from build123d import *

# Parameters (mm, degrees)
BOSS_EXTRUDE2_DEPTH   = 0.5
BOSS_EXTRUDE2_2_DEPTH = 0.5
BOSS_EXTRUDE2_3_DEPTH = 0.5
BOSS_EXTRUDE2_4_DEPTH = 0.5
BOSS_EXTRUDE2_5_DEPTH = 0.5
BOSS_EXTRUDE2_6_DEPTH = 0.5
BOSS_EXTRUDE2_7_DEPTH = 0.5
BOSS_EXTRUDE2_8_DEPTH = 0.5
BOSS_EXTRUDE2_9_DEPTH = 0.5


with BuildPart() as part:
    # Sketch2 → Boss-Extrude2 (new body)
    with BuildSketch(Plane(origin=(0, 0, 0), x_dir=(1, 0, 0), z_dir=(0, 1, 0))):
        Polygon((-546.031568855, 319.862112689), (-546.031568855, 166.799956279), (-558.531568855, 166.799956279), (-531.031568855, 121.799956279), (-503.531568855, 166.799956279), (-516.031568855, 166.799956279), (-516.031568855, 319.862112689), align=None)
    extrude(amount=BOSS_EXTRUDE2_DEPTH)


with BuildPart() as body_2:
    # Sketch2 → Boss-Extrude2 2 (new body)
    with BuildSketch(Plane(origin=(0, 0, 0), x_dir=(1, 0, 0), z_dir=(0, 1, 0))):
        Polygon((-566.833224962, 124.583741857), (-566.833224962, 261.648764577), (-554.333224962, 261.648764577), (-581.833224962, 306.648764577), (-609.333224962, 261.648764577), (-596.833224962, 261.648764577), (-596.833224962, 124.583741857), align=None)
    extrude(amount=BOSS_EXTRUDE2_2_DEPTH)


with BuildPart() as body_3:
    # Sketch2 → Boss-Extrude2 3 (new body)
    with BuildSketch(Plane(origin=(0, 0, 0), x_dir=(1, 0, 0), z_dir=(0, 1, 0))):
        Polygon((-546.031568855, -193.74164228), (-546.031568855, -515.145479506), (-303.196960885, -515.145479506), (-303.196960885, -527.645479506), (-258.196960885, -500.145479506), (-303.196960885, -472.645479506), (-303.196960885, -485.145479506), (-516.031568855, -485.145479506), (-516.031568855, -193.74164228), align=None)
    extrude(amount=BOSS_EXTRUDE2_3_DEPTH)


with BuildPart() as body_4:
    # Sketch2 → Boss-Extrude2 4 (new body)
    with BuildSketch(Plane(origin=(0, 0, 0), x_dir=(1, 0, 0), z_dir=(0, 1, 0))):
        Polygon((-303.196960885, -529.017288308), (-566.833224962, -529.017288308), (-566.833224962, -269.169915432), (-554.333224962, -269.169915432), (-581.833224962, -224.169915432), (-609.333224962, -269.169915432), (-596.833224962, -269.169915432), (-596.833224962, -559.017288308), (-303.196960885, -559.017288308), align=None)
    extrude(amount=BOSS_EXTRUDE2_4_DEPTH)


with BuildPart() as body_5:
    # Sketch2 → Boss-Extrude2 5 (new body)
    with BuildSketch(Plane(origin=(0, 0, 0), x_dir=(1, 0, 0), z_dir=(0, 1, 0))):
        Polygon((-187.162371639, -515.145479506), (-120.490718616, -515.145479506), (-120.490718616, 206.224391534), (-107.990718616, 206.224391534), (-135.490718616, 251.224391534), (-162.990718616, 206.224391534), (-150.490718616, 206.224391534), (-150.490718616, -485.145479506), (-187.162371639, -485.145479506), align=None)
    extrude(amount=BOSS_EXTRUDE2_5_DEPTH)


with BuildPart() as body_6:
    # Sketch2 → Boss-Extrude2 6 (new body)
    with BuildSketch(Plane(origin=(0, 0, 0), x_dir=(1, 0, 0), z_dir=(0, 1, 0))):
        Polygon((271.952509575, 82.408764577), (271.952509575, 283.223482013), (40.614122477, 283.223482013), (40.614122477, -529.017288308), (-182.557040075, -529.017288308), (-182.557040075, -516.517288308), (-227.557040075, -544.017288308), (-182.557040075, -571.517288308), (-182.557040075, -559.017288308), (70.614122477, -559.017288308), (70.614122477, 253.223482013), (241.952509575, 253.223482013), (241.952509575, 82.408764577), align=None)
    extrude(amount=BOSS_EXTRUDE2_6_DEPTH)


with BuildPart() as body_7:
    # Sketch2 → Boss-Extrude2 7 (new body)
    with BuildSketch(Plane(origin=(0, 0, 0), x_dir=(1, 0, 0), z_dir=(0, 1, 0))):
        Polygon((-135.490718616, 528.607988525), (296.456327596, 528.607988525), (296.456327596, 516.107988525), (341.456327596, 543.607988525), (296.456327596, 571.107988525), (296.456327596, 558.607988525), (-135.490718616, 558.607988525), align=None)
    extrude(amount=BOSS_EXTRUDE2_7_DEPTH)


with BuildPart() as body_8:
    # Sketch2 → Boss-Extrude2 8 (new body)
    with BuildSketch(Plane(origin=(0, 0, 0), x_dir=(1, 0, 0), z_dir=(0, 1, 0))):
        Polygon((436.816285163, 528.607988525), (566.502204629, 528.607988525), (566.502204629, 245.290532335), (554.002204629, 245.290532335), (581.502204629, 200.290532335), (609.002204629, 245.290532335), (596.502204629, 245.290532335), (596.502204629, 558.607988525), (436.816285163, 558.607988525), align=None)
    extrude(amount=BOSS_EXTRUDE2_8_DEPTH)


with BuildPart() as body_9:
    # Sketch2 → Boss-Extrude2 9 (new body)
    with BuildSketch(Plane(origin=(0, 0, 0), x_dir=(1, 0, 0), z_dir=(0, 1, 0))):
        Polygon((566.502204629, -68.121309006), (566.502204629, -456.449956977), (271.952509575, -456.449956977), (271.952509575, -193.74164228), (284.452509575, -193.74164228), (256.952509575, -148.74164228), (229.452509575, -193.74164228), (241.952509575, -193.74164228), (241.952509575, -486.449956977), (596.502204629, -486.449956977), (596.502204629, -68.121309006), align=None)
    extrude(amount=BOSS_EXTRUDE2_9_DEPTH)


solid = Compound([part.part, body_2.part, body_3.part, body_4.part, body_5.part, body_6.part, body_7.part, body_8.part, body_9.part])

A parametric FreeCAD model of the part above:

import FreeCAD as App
import Part
import Sketcher

doc = App.newDocument("Part")
body = doc.addObject("PartDesign::Body", "Body")

# Sketch on XZ plane
sketch1 = body.newObject("Sketcher::SketchObject", "Sketch")
sketch1.AttachmentSupport = (doc.getObject("XZ_Plane"), [""])
sketch1.MapMode = "FlatFace"
sketch1.addGeometry([
    Part.LineSegment(App.Vector(-546.031569, -319.862113, 0), App.Vector(-546.031569, -166.799956, 0)),  # 0
    Part.LineSegment(App.Vector(-546.031569, -166.799956, 0), App.Vector(-558.531569, -166.799956, 0)),  # 1
    Part.LineSegment(App.Vector(-558.531569, -166.799956, 0), App.Vector(-531.031569, -121.799956, 0)),  # 2
    Part.LineSegment(App.Vector(-531.031569, -121.799956, 0), App.Vector(-503.531569, -166.799956, 0)),  # 3
    Part.LineSegment(App.Vector(-503.531569, -166.799956, 0), App.Vector(-516.031569, -166.799956, 0)),  # 4
    Part.LineSegment(App.Vector(-516.031569, -166.799956, 0), App.Vector(-516.031569, -319.862113, 0)),  # 5
    Part.LineSegment(App.Vector(-516.031569, -319.862113, 0), App.Vector(-546.031569, -319.862113, 0)),  # 6
], False)
sketch1.addConstraint([
    Sketcher.Constraint("Coincident", 0, 2, 1, 1),
    Sketcher.Constraint("Coincident", 1, 2, 2, 1),
    Sketcher.Constraint("Coincident", 2, 2, 3, 1),
    Sketcher.Constraint("Coincident", 3, 2, 4, 1),
    Sketcher.Constraint("Coincident", 4, 2, 5, 1),
    Sketcher.Constraint("Coincident", 5, 2, 6, 1),
    Sketcher.Constraint("Coincident", 6, 2, 0, 1),
    Sketcher.Constraint("Vertical", 0),
    Sketcher.Constraint("Horizontal", 1),
    Sketcher.Constraint("Horizontal", 4),
    Sketcher.Constraint("Vertical", 5),
    Sketcher.Constraint("Horizontal", 6),
    Sketcher.Constraint("Horizontal", 1, 2, 3, 2),
    Sketcher.Constraint("Equal", 1, 4),
    Sketcher.Constraint("Equal", 2, 3),
    Sketcher.Constraint("DistanceX", 6, 2, 6, 1, 30.0),
    Sketcher.Constraint("DistanceX", 1, 2, 1, 1, 12.5),
    Sketcher.Constraint("DistanceY", 0, 2, 2, 2, 45.0),
    Sketcher.Constraint("DistanceY", 0, 1, 0, 2, 153.062156),
    Sketcher.Constraint("DistanceX", 0, 2, -1, 1, 546.031569),
    Sketcher.Constraint("DistanceY", 0, 2, -1, 1, 166.799956),
])
pad1 = body.newObject("PartDesign::Pad", "Pad")
pad1.Profile = sketch1
pad1.Length = 0.5
pad1.Reversed = True
body2 = doc.addObject("PartDesign::Body", "Body001")

# Sketch on XZ plane
sketch2 = body2.newObject("Sketcher::SketchObject", "Sketch001")
sketch2.AttachmentSupport = (doc.getObject("XZ_Plane001"), [""])
sketch2.MapMode = "FlatFace"
sketch2.addGeometry([
    Part.LineSegment(App.Vector(-566.833225, -124.583742, 0), App.Vector(-566.833225, -261.648765, 0)),  # 0
    Part.LineSegment(App.Vector(-566.833225, -261.648765, 0), App.Vector(-554.333225, -261.648765, 0)),  # 1
    Part.LineSegment(App.Vector(-554.333225, -261.648765, 0), App.Vector(-581.833225, -306.648765, 0)),  # 2
    Part.LineSegment(App.Vector(-581.833225, -306.648765, 0), App.Vector(-609.333225, -261.648765, 0)),  # 3
    Part.LineSegment(App.Vector(-609.333225, -261.648765, 0), App.Vector(-596.833225, -261.648765, 0)),  # 4
    Part.LineSegment(App.Vector(-596.833225, -261.648765, 0), App.Vector(-596.833225, -124.583742, 0)),  # 5
    Part.LineSegment(App.Vector(-596.833225, -124.583742, 0), App.Vector(-566.833225, -124.583742, 0)),  # 6
], False)
sketch2.addConstraint([
    Sketcher.Constraint("Coincident", 0, 2, 1, 1),
    Sketcher.Constraint("Coincident", 1, 2, 2, 1),
    Sketcher.Constraint("Coincident", 2, 2, 3, 1),
    Sketcher.Constraint("Coincident", 3, 2, 4, 1),
    Sketcher.Constraint("Coincident", 4, 2, 5, 1),
    Sketcher.Constraint("Coincident", 5, 2, 6, 1),
    Sketcher.Constraint("Coincident", 6, 2, 0, 1),
    Sketcher.Constraint("Vertical", 0),
    Sketcher.Constraint("Horizontal", 1),
    Sketcher.Constraint("Horizontal", 4),
    Sketcher.Constraint("Vertical", 5),
    Sketcher.Constraint("Horizontal", 6),
    Sketcher.Constraint("Horizontal", 1, 2, 3, 2),
    Sketcher.Constraint("Equal", 1, 4),
    Sketcher.Constraint("Equal", 2, 3),
    Sketcher.Constraint("DistanceX", 6, 1, 6, 2, 30.0),
    Sketcher.Constraint("DistanceX", 1, 1, 1, 2, 12.5),
    Sketcher.Constraint("DistanceY", 2, 2, 0, 2, 45.0),
    Sketcher.Constraint("DistanceY", 0, 2, 0, 1, 137.065023),
    Sketcher.Constraint("DistanceY", 5, 2, -1, 1, 124.583742),
    Sketcher.Constraint("DistanceX", 0, 2, -1, 1, 566.833225),
])
pad2 = body2.newObject("PartDesign::Pad", "Pad001")
pad2.Profile = sketch2
pad2.Length = 0.5
pad2.Reversed = True
body3 = doc.addObject("PartDesign::Body", "Body002")

# Sketch on XZ plane
sketch3 = body3.newObject("Sketcher::SketchObject", "Sketch002")
sketch3.AttachmentSupport = (doc.getObject("XZ_Plane002"), [""])
sketch3.MapMode = "FlatFace"
sketch3.addGeometry([
    Part.LineSegment(App.Vector(-546.031569, 193.741642, 0), App.Vector(-546.031569, 515.14548, 0)),  # 0
    Part.LineSegment(App.Vector(-546.031569, 515.14548, 0), App.Vector(-303.196961, 515.14548, 0)),  # 1
    Part.LineSegment(App.Vector(-303.196961, 515.14548, 0), App.Vector(-303.196961, 527.64548, 0)),  # 2
    Part.LineSegment(App.Vector(-303.196961, 527.64548, 0), App.Vector(-258.196961, 500.14548, 0)),  # 3
    Part.LineSegment(App.Vector(-258.196961, 500.14548, 0), App.Vector(-303.196961, 472.64548, 0)),  # 4
    Part.LineSegment(App.Vector(-303.196961, 472.64548, 0), App.Vector(-303.196961, 485.14548, 0)),  # 5
    Part.LineSegment(App.Vector(-303.196961, 485.14548, 0), App.Vector(-516.031569, 485.14548, 0)),  # 6
    Part.LineSegment(App.Vector(-516.031569, 485.14548, 0), App.Vector(-516.031569, 193.741642, 0)),  # 7
    Part.LineSegment(App.Vector(-516.031569, 193.741642, 0), App.Vector(-546.031569, 193.741642, 0)),  # 8
], False)
sketch3.addConstraint([
    Sketcher.Constraint("Coincident", 0, 2, 1, 1),
    Sketcher.Constraint("Coincident", 1, 2, 2, 1),
    Sketcher.Constraint("Coincident", 2, 2, 3, 1),
    Sketcher.Constraint("Coincident", 3, 2, 4, 1),
    Sketcher.Constraint("Coincident", 4, 2, 5, 1),
    Sketcher.Constraint("Coincident", 5, 2, 6, 1),
    Sketcher.Constraint("Coincident", 6, 2, 7, 1),
    Sketcher.Constraint("Coincident", 7, 2, 8, 1),
    Sketcher.Constraint("Coincident", 8, 2, 0, 1),
    Sketcher.Constraint("Vertical", 0),
    Sketcher.Constraint("Horizontal", 1),
    Sketcher.Constraint("Vertical", 2),
    Sketcher.Constraint("Vertical", 5),
    Sketcher.Constraint("Horizontal", 6),
    Sketcher.Constraint("Vertical", 7),
    Sketcher.Constraint("Horizontal", 8),
    Sketcher.Constraint("Vertical", 2, 2, 4, 2),
    Sketcher.Constraint("Equal", 2, 5),
    Sketcher.Constraint("Equal", 3, 4),
    Sketcher.Constraint("DistanceX", 8, 2, 8, 1, 30.0),
    Sketcher.Constraint("DistanceY", 2, 1, 2, 2, 12.5),
    Sketcher.Constraint("DistanceX", 1, 2, 3, 2, 45.0),
    Sketcher.Constraint("DistanceY", 3, 2, 1, 2, 15.0),
    Sketcher.Constraint("DistanceX", 1, 1, 1, 2, 242.834608),
    Sketcher.Constraint("DistanceY", 0, 1, 0, 2, 321.403837),
    Sketcher.Constraint("DistanceX", 0, 2, -1, 1, 546.031569),
    Sketcher.Constraint("DistanceY", -1, 1, 0, 2, 515.14548),
])
pad3 = body3.newObject("PartDesign::Pad", "Pad002")
pad3.Profile = sketch3
pad3.Length = 0.5
pad3.Reversed = True
body4 = doc.addObject("PartDesign::Body", "Body003")

# Sketch on XZ plane
sketch4 = body4.newObject("Sketcher::SketchObject", "Sketch003")
sketch4.AttachmentSupport = (doc.getObject("XZ_Plane003"), [""])
sketch4.MapMode = "FlatFace"
sketch4.addGeometry([
    Part.LineSegment(App.Vector(-303.196961, 529.017288, 0), App.Vector(-566.833225, 529.017288, 0)),  # 0
    Part.LineSegment(App.Vector(-566.833225, 529.017288, 0), App.Vector(-566.833225, 269.169915, 0)),  # 1
    Part.LineSegment(App.Vector(-566.833225, 269.169915, 0), App.Vector(-554.333225, 269.169915, 0)),  # 2
    Part.LineSegment(App.Vector(-554.333225, 269.169915, 0), App.Vector(-581.833225, 224.169915, 0)),  # 3
    Part.LineSegment(App.Vector(-581.833225, 224.169915, 0), App.Vector(-609.333225, 269.169915, 0)),  # 4
    Part.LineSegment(App.Vector(-609.333225, 269.169915, 0), App.Vector(-596.833225, 269.169915, 0)),  # 5
    Part.LineSegment(App.Vector(-596.833225, 269.169915, 0), App.Vector(-596.833225, 559.017288, 0)),  # 6
    Part.LineSegment(App.Vector(-596.833225, 559.017288, 0), App.Vector(-303.196961, 559.017288, 0)),  # 7
    Part.LineSegment(App.Vector(-303.196961, 559.017288, 0), App.Vector(-303.196961, 529.017288, 0)),  # 8
], False)
sketch4.addConstraint([
    Sketcher.Constraint("Coincident", 0, 2, 1, 1),
    Sketcher.Constraint("Coincident", 1, 2, 2, 1),
    Sketcher.Constraint("Coincident", 2, 2, 3, 1),
    Sketcher.Constraint("Coincident", 3, 2, 4, 1),
    Sketcher.Constraint("Coincident", 4, 2, 5, 1),
    Sketcher.Constraint("Coincident", 5, 2, 6, 1),
    Sketcher.Constraint("Coincident", 6, 2, 7, 1),
    Sketcher.Constraint("Coincident", 7, 2, 8, 1),
    Sketcher.Constraint("Coincident", 8, 2, 0, 1),
    Sketcher.Constraint("Horizontal", 0),
    Sketcher.Constraint("Vertical", 1),
    Sketcher.Constraint("Horizontal", 2),
    Sketcher.Constraint("Horizontal", 5),
    Sketcher.Constraint("Vertical", 6),
    Sketcher.Constraint("Horizontal", 7),
    Sketcher.Constraint("Vertical", 8),
    Sketcher.Constraint("Horizontal", 2, 2, 4, 2),
    Sketcher.Constraint("Equal", 2, 5),
    Sketcher.Constraint("Equal", 3, 4),
    Sketcher.Constraint("DistanceY", 8, 2, 8, 1, 30.0),
    Sketcher.Constraint("DistanceX", 2, 1, 2, 2, 12.5),
    Sketcher.Constraint("DistanceX", 3, 2, 1, 2, 15.0),
    Sketcher.Constraint("DistanceY", 3, 2, 1, 2, 45.0),
    Sketcher.Constraint("DistanceX", 0, 2, 0, 1, 263.636264),
    Sketcher.Constraint("DistanceY", 1, 2, 1, 1, 259.847373),
    Sketcher.Constraint("DistanceY", -1, 1, 0, 2, 529.017288),
    Sketcher.Constraint("DistanceX", 7, 2, -1, 1, 303.196961),
])
pad4 = body4.newObject("PartDesign::Pad", "Pad003")
pad4.Profile = sketch4
pad4.Length = 0.5
pad4.Reversed = True
body5 = doc.addObject("PartDesign::Body", "Body004")

# Sketch on XZ plane
sketch5 = body5.newObject("Sketcher::SketchObject", "Sketch004")
sketch5.AttachmentSupport = (doc.getObject("XZ_Plane004"), [""])
sketch5.MapMode = "FlatFace"
sketch5.addGeometry([
    Part.LineSegment(App.Vector(-187.162372, 515.14548, 0), App.Vector(-120.490719, 515.14548, 0)),  # 0
    Part.LineSegment(App.Vector(-120.490719, 515.14548, 0), App.Vector(-120.490719, -206.224392, 0)),  # 1
    Part.LineSegment(App.Vector(-120.490719, -206.224392, 0), App.Vector(-107.990719, -206.224392, 0)),  # 2
    Part.LineSegment(App.Vector(-107.990719, -206.224392, 0), App.Vector(-135.490719, -251.224392, 0)),  # 3
    Part.LineSegment(App.Vector(-135.490719, -251.224392, 0), App.Vector(-162.990719, -206.224392, 0)),  # 4
    Part.LineSegment(App.Vector(-162.990719, -206.224392, 0), App.Vector(-150.490719, -206.224392, 0)),  # 5
    Part.LineSegment(App.Vector(-150.490719, -206.224392, 0), App.Vector(-150.490719, 485.14548, 0)),  # 6
    Part.LineSegment(App.Vector(-150.490719, 485.14548, 0), App.Vector(-187.162372, 485.14548, 0)),  # 7
    Part.LineSegment(App.Vector(-187.162372, 485.14548, 0), App.Vector(-187.162372, 515.14548, 0)),  # 8
], False)
sketch5.addConstraint([
    Sketcher.Constraint("Coincident", 0, 2, 1, 1),
    Sketcher.Constraint("Coincident", 1, 2, 2, 1),
    Sketcher.Constraint("Coincident", 2, 2, 3, 1),
    Sketcher.Constraint("Coincident", 3, 2, 4, 1),
    Sketcher.Constraint("Coincident", 4, 2, 5, 1),
    Sketcher.Constraint("Coincident", 5, 2, 6, 1),
    Sketcher.Constraint("Coincident", 6, 2, 7, 1),
    Sketcher.Constraint("Coincident", 7, 2, 8, 1),
    Sketcher.Constraint("Coincident", 8, 2, 0, 1),
    Sketcher.Constraint("Horizontal", 0),
    Sketcher.Constraint("Vertical", 1),
    Sketcher.Constraint("Horizontal", 2),
    Sketcher.Constraint("Horizontal", 5),
    Sketcher.Constraint("Vertical", 6),
    Sketcher.Constraint("Horizontal", 7),
    Sketcher.Constraint("Vertical", 8),
    Sketcher.Constraint("Horizontal", 2, 2, 4, 2),
    Sketcher.Constraint("Equal", 2, 5),
    Sketcher.Constraint("Equal", 3, 4),
    Sketcher.Constraint("DistanceY", 8, 1, 8, 2, 30.0),
    Sketcher.Constraint("DistanceX", 2, 1, 2, 2, 12.5),
    Sketcher.Constraint("DistanceX", 3, 2, 1, 2, 15.0),
    Sketcher.Constraint("DistanceY", 3, 2, 1, 2, 45.0),
    Sketcher.Constraint("DistanceY", 1, 2, 1, 1, 721.369871),
    Sketcher.Constraint("DistanceX", 0, 1, 0, 2, 66.671653),
    Sketcher.Constraint("DistanceX", 0, 2, -1, 1, 120.490719),
    Sketcher.Constraint("DistanceY", -1, 1, 0, 2, 515.14548),
])
pad5 = body5.newObject("PartDesign::Pad", "Pad004")
pad5.Profile = sketch5
pad5.Length = 0.5
pad5.Reversed = True
body6 = doc.addObject("PartDesign::Body", "Body005")

# Sketch on XZ plane
sketch6 = body6.newObject("Sketcher::SketchObject", "Sketch005")
sketch6.AttachmentSupport = (doc.getObject("XZ_Plane005"), [""])
sketch6.MapMode = "FlatFace"
sketch6.addGeometry([
    Part.LineSegment(App.Vector(271.95251, -82.408765, 0), App.Vector(271.95251, -283.223482, 0)),  # 0
    Part.LineSegment(App.Vector(271.95251, -283.223482, 0), App.Vector(40.614122, -283.223482, 0)),  # 1
    Part.LineSegment(App.Vector(40.614122, -283.223482, 0), App.Vector(40.614122, 529.017288, 0)),  # 2
    Part.LineSegment(App.Vector(40.614122, 529.017288, 0), App.Vector(-182.55704, 529.017288, 0)),  # 3
    Part.LineSegment(App.Vector(-182.55704, 529.017288, 0), App.Vector(-182.55704, 516.517288, 0)),  # 4
    Part.LineSegment(App.Vector(-182.55704, 516.517288, 0), App.Vector(-227.55704, 544.017288, 0)),  # 5
    Part.LineSegment(App.Vector(-227.55704, 544.017288, 0), App.Vector(-182.55704, 571.517288, 0)),  # 6
    Part.LineSegment(App.Vector(-182.55704, 571.517288, 0), App.Vector(-182.55704, 559.017288, 0)),  # 7
    Part.LineSegment(App.Vector(-182.55704, 559.017288, 0), App.Vector(70.614122, 559.017288, 0)),  # 8
    Part.LineSegment(App.Vector(70.614122, 559.017288, 0), App.Vector(70.614122, -253.223482, 0)),  # 9
    Part.LineSegment(App.Vector(70.614122, -253.223482, 0), App.Vector(241.95251, -253.223482, 0)),  # 10
    Part.LineSegment(App.Vector(241.95251, -253.223482, 0), App.Vector(241.95251, -82.408765, 0)),  # 11
    Part.LineSegment(App.Vector(241.95251, -82.408765, 0), App.Vector(271.95251, -82.408765, 0)),  # 12
], False)
sketch6.addConstraint([
    Sketcher.Constraint("Coincident", 0, 2, 1, 1),
    Sketcher.Constraint("Coincident", 1, 2, 2, 1),
    Sketcher.Constraint("Coincident", 2, 2, 3, 1),
    Sketcher.Constraint("Coincident", 3, 2, 4, 1),
    Sketcher.Constraint("Coincident", 4, 2, 5, 1),
    Sketcher.Constraint("Coincident", 5, 2, 6, 1),
    Sketcher.Constraint("Coincident", 6, 2, 7, 1),
    Sketcher.Constraint("Coincident", 7, 2, 8, 1),
    Sketcher.Constraint("Coincident", 8, 2, 9, 1),
    Sketcher.Constraint("Coincident", 9, 2, 10, 1),
    Sketcher.Constraint("Coincident", 10, 2, 11, 1),
    Sketcher.Constraint("Coincident", 11, 2, 12, 1),
    Sketcher.Constraint("Coincident", 12, 2, 0, 1),
    Sketcher.Constraint("Vertical", 0),
    Sketcher.Constraint("Horizontal", 1),
    Sketcher.Constraint("Vertical", 2),
    Sketcher.Constraint("Horizontal", 3),
    Sketcher.Constraint("Vertical", 4),
    Sketcher.Constraint("Vertical", 7),
    Sketcher.Constraint("Horizontal", 8),
    Sketcher.Constraint("Vertical", 9),
    Sketcher.Constraint("Horizontal", 10),
    Sketcher.Constraint("Vertical", 11),
    Sketcher.Constraint("Horizontal", 12),
    Sketcher.Constraint("Vertical", 4, 2, 6, 2),
    Sketcher.Constraint("Equal", 4, 7),
    Sketcher.Constraint("Equal", 2, 9),
    Sketcher.Constraint("Equal", 5, 6),
    Sketcher.Constraint("DistanceX", 12, 1, 12, 2, 30.0),
    Sketcher.Constraint("DistanceY", 4, 2, 4, 1, 12.5),
    Sketcher.Constraint("DistanceX", 5, 2, 3, 2, 45.0),
    Sketcher.Constraint("DistanceY", 3, 2, 5, 2, 15.0),
    Sketcher.Constraint("DistanceX", 2, 2, 8, 2, 30.0),
    Sketcher.Constraint("DistanceY", 2, 1, 2, 2, 812.24077),
    Sketcher.Constraint("DistanceX", 1, 2, 1, 1, 231.338387),
    Sketcher.Constraint("DistanceX", 3, 2, 3, 1, 223.171163),
    Sketcher.Constraint("DistanceY", 0, 2, 0, 1, 200.814717),
    Sketcher.Constraint("DistanceX", -1, 1, 0, 2, 271.95251),
    Sketcher.Constraint("DistanceY", -1, 1, 2, 2, 529.017288),
])
pad6 = body6.newObject("PartDesign::Pad", "Pad005")
pad6.Profile = sketch6
pad6.Length = 0.5
pad6.Reversed = True
body7 = doc.addObject("PartDesign::Body", "Body006")

# Sketch on XZ plane
sketch7 = body7.newObject("Sketcher::SketchObject", "Sketch006")
sketch7.AttachmentSupport = (doc.getObject("XZ_Plane006"), [""])
sketch7.MapMode = "FlatFace"
sketch7.addGeometry([
    Part.LineSegment(App.Vector(-135.490719, -528.607989, 0), App.Vector(296.456328, -528.607989, 0)),  # 0
    Part.LineSegment(App.Vector(296.456328, -528.607989, 0), App.Vector(296.456328, -516.107989, 0)),  # 1
    Part.LineSegment(App.Vector(296.456328, -516.107989, 0), App.Vector(341.456328, -543.607989, 0)),  # 2
    Part.LineSegment(App.Vector(341.456328, -543.607989, 0), App.Vector(296.456328, -571.107989, 0)),  # 3
    Part.LineSegment(App.Vector(296.456328, -571.107989, 0), App.Vector(296.456328, -558.607989, 0)),  # 4
    Part.LineSegment(App.Vector(296.456328, -558.607989, 0), App.Vector(-135.490719, -558.607989, 0)),  # 5
    Part.LineSegment(App.Vector(-135.490719, -558.607989, 0), App.Vector(-135.490719, -528.607989, 0)),  # 6
], False)
sketch7.addConstraint([
    Sketcher.Constraint("Coincident", 0, 2, 1, 1),
    Sketcher.Constraint("Coincident", 1, 2, 2, 1),
    Sketcher.Constraint("Coincident", 2, 2, 3, 1),
    Sketcher.Constraint("Coincident", 3, 2, 4, 1),
    Sketcher.Constraint("Coincident", 4, 2, 5, 1),
    Sketcher.Constraint("Coincident", 5, 2, 6, 1),
    Sketcher.Constraint("Coincident", 6, 2, 0, 1),
    Sketcher.Constraint("Horizontal", 0),
    Sketcher.Constraint("Vertical", 1),
    Sketcher.Constraint("Vertical", 4),
    Sketcher.Constraint("Horizontal", 5),
    Sketcher.Constraint("Vertical", 6),
    Sketcher.Constraint("Vertical", 1, 2, 3, 2),
    Sketcher.Constraint("Equal", 1, 4),
    Sketcher.Constraint("Equal", 2, 3),
    Sketcher.Constraint("DistanceY", 6, 1, 6, 2, 30.0),
    Sketcher.Constraint("DistanceY", 1, 1, 1, 2, 12.5),
    Sketcher.Constraint("DistanceX", 0, 2, 2, 2, 45.0),
    Sketcher.Constraint("DistanceX", 0, 1, 0, 2, 431.947046),
    Sketcher.Constraint("DistanceY", 0, 2, -1, 1, 528.607989),
    Sketcher.Constraint("DistanceX", 5, 2, -1, 1, 135.490719),
])
pad7 = body7.newObject("PartDesign::Pad", "Pad006")
pad7.Profile = sketch7
pad7.Length = 0.5
pad7.Reversed = True
body8 = doc.addObject("PartDesign::Body", "Body007")

# Sketch on XZ plane
sketch8 = body8.newObject("Sketcher::SketchObject", "Sketch007")
sketch8.AttachmentSupport = (doc.getObject("XZ_Plane007"), [""])
sketch8.MapMode = "FlatFace"
sketch8.addGeometry([
    Part.LineSegment(App.Vector(436.816285, -528.607989, 0), App.Vector(566.502205, -528.607989, 0)),  # 0
    Part.LineSegment(App.Vector(566.502205, -528.607989, 0), App.Vector(566.502205, -245.290532, 0)),  # 1
    Part.LineSegment(App.Vector(566.502205, -245.290532, 0), App.Vector(554.002205, -245.290532, 0)),  # 2
    Part.LineSegment(App.Vector(554.002205, -245.290532, 0), App.Vector(581.502205, -200.290532, 0)),  # 3
    Part.LineSegment(App.Vector(581.502205, -200.290532, 0), App.Vector(609.002205, -245.290532, 0)),  # 4
    Part.LineSegment(App.Vector(609.002205, -245.290532, 0), App.Vector(596.502205, -245.290532, 0)),  # 5
    Part.LineSegment(App.Vector(596.502205, -245.290532, 0), App.Vector(596.502205, -558.607989, 0)),  # 6
    Part.LineSegment(App.Vector(596.502205, -558.607989, 0), App.Vector(436.816285, -558.607989, 0)),  # 7
    Part.LineSegment(App.Vector(436.816285, -558.607989, 0), App.Vector(436.816285, -528.607989, 0)),  # 8
], False)
sketch8.addConstraint([
    Sketcher.Constraint("Coincident", 0, 2, 1, 1),
    Sketcher.Constraint("Coincident", 1, 2, 2, 1),
    Sketcher.Constraint("Coincident", 2, 2, 3, 1),
    Sketcher.Constraint("Coincident", 3, 2, 4, 1),
    Sketcher.Constraint("Coincident", 4, 2, 5, 1),
    Sketcher.Constraint("Coincident", 5, 2, 6, 1),
    Sketcher.Constraint("Coincident", 6, 2, 7, 1),
    Sketcher.Constraint("Coincident", 7, 2, 8, 1),
    Sketcher.Constraint("Coincident", 8, 2, 0, 1),
    Sketcher.Constraint("Horizontal", 0),
    Sketcher.Constraint("Vertical", 1),
    Sketcher.Constraint("Horizontal", 2),
    Sketcher.Constraint("Horizontal", 5),
    Sketcher.Constraint("Vertical", 6),
    Sketcher.Constraint("Horizontal", 7),
    Sketcher.Constraint("Vertical", 8),
    Sketcher.Constraint("Horizontal", 2, 2, 4, 2),
    Sketcher.Constraint("Equal", 2, 5),
    Sketcher.Constraint("Equal", 3, 4),
    Sketcher.Constraint("DistanceY", 8, 1, 8, 2, 30.0),
    Sketcher.Constraint("DistanceX", 2, 2, 2, 1, 12.5),
    Sketcher.Constraint("DistanceX", 1, 2, 3, 2, 15.0),
    Sketcher.Constraint("DistanceY", 1, 2, 3, 2, 45.0),
    Sketcher.Constraint("DistanceX", 0, 1, 0, 2, 129.685919),
    Sketcher.Constraint("DistanceY", 1, 1, 1, 2, 283.317456),
    Sketcher.Constraint("DistanceY", 0, 2, -1, 1, 528.607989),
    Sketcher.Constraint("DistanceX", -1, 1, 0, 2, 566.502205),
])
pad8 = body8.newObject("PartDesign::Pad", "Pad007")
pad8.Profile = sketch8
pad8.Length = 0.5
pad8.Reversed = True
body9 = doc.addObject("PartDesign::Body", "Body008")

# Sketch on XZ plane
sketch9 = body9.newObject("Sketcher::SketchObject", "Sketch008")
sketch9.AttachmentSupport = (doc.getObject("XZ_Plane008"), [""])
sketch9.MapMode = "FlatFace"
sketch9.addGeometry([
    Part.LineSegment(App.Vector(566.502205, 68.121309, 0), App.Vector(566.502205, 456.449957, 0)),  # 0
    Part.LineSegment(App.Vector(566.502205, 456.449957, 0), App.Vector(271.95251, 456.449957, 0)),  # 1
    Part.LineSegment(App.Vector(271.95251, 456.449957, 0), App.Vector(271.95251, 193.741642, 0)),  # 2
    Part.LineSegment(App.Vector(271.95251, 193.741642, 0), App.Vector(284.45251, 193.741642, 0)),  # 3
    Part.LineSegment(App.Vector(284.45251, 193.741642, 0), App.Vector(256.95251, 148.741642, 0)),  # 4
    Part.LineSegment(App.Vector(256.95251, 148.741642, 0), App.Vector(229.45251, 193.741642, 0)),  # 5
    Part.LineSegment(App.Vector(229.45251, 193.741642, 0), App.Vector(241.95251, 193.741642, 0)),  # 6
    Part.LineSegment(App.Vector(241.95251, 193.741642, 0), App.Vector(241.95251, 486.449957, 0)),  # 7
    Part.LineSegment(App.Vector(241.95251, 486.449957, 0), App.Vector(596.502205, 486.449957, 0)),  # 8
    Part.LineSegment(App.Vector(596.502205, 486.449957, 0), App.Vector(596.502205, 68.121309, 0)),  # 9
    Part.LineSegment(App.Vector(596.502205, 68.121309, 0), App.Vector(566.502205, 68.121309, 0)),  # 10
], False)
sketch9.addConstraint([
    Sketcher.Constraint("Coincident", 0, 2, 1, 1),
    Sketcher.Constraint("Coincident", 1, 2, 2, 1),
    Sketcher.Constraint("Coincident", 2, 2, 3, 1),
    Sketcher.Constraint("Coincident", 3, 2, 4, 1),
    Sketcher.Constraint("Coincident", 4, 2, 5, 1),
    Sketcher.Constraint("Coincident", 5, 2, 6, 1),
    Sketcher.Constraint("Coincident", 6, 2, 7, 1),
    Sketcher.Constraint("Coincident", 7, 2, 8, 1),
    Sketcher.Constraint("Coincident", 8, 2, 9, 1),
    Sketcher.Constraint("Coincident", 9, 2, 10, 1),
    Sketcher.Constraint("Coincident", 10, 2, 0, 1),
    Sketcher.Constraint("Vertical", 0),
    Sketcher.Constraint("Horizontal", 1),
    Sketcher.Constraint("Vertical", 2),
    Sketcher.Constraint("Horizontal", 3),
    Sketcher.Constraint("Horizontal", 6),
    Sketcher.Constraint("Vertical", 7),
    Sketcher.Constraint("Horizontal", 8),
    Sketcher.Constraint("Vertical", 9),
    Sketcher.Constraint("Horizontal", 10),
    Sketcher.Constraint("Horizontal", 3, 2, 5, 2),
    Sketcher.Constraint("Equal", 3, 6),
    Sketcher.Constraint("Equal", 4, 5),
    Sketcher.Constraint("DistanceX", 10, 2, 10, 1, 30.0),
    Sketcher.Constraint("DistanceX", 3, 1, 3, 2, 12.5),
    Sketcher.Constraint("DistanceX", 4, 2, 2, 2, 15.0),
    Sketcher.Constraint("DistanceY", 4, 2, 2, 2, 45.0),
    Sketcher.Constraint("DistanceY", 1, 2, 7, 2, 30.0),
    Sketcher.Constraint("DistanceX", 1, 2, 1, 1, 294.549695),
    Sketcher.Constraint("DistanceY", 0, 1, 0, 2, 388.328648),
    Sketcher.Constraint("DistanceY", 2, 2, 2, 1, 262.708315),
    Sketcher.Constraint("DistanceX", -1, 1, 1, 2, 271.95251),
    Sketcher.Constraint("DistanceY", -1, 1, 9, 2, 68.121309),
])
pad9 = body9.newObject("PartDesign::Pad", "Pad008")
pad9.Profile = sketch9
pad9.Length = 0.5
pad9.Reversed = True

doc.recompute()
